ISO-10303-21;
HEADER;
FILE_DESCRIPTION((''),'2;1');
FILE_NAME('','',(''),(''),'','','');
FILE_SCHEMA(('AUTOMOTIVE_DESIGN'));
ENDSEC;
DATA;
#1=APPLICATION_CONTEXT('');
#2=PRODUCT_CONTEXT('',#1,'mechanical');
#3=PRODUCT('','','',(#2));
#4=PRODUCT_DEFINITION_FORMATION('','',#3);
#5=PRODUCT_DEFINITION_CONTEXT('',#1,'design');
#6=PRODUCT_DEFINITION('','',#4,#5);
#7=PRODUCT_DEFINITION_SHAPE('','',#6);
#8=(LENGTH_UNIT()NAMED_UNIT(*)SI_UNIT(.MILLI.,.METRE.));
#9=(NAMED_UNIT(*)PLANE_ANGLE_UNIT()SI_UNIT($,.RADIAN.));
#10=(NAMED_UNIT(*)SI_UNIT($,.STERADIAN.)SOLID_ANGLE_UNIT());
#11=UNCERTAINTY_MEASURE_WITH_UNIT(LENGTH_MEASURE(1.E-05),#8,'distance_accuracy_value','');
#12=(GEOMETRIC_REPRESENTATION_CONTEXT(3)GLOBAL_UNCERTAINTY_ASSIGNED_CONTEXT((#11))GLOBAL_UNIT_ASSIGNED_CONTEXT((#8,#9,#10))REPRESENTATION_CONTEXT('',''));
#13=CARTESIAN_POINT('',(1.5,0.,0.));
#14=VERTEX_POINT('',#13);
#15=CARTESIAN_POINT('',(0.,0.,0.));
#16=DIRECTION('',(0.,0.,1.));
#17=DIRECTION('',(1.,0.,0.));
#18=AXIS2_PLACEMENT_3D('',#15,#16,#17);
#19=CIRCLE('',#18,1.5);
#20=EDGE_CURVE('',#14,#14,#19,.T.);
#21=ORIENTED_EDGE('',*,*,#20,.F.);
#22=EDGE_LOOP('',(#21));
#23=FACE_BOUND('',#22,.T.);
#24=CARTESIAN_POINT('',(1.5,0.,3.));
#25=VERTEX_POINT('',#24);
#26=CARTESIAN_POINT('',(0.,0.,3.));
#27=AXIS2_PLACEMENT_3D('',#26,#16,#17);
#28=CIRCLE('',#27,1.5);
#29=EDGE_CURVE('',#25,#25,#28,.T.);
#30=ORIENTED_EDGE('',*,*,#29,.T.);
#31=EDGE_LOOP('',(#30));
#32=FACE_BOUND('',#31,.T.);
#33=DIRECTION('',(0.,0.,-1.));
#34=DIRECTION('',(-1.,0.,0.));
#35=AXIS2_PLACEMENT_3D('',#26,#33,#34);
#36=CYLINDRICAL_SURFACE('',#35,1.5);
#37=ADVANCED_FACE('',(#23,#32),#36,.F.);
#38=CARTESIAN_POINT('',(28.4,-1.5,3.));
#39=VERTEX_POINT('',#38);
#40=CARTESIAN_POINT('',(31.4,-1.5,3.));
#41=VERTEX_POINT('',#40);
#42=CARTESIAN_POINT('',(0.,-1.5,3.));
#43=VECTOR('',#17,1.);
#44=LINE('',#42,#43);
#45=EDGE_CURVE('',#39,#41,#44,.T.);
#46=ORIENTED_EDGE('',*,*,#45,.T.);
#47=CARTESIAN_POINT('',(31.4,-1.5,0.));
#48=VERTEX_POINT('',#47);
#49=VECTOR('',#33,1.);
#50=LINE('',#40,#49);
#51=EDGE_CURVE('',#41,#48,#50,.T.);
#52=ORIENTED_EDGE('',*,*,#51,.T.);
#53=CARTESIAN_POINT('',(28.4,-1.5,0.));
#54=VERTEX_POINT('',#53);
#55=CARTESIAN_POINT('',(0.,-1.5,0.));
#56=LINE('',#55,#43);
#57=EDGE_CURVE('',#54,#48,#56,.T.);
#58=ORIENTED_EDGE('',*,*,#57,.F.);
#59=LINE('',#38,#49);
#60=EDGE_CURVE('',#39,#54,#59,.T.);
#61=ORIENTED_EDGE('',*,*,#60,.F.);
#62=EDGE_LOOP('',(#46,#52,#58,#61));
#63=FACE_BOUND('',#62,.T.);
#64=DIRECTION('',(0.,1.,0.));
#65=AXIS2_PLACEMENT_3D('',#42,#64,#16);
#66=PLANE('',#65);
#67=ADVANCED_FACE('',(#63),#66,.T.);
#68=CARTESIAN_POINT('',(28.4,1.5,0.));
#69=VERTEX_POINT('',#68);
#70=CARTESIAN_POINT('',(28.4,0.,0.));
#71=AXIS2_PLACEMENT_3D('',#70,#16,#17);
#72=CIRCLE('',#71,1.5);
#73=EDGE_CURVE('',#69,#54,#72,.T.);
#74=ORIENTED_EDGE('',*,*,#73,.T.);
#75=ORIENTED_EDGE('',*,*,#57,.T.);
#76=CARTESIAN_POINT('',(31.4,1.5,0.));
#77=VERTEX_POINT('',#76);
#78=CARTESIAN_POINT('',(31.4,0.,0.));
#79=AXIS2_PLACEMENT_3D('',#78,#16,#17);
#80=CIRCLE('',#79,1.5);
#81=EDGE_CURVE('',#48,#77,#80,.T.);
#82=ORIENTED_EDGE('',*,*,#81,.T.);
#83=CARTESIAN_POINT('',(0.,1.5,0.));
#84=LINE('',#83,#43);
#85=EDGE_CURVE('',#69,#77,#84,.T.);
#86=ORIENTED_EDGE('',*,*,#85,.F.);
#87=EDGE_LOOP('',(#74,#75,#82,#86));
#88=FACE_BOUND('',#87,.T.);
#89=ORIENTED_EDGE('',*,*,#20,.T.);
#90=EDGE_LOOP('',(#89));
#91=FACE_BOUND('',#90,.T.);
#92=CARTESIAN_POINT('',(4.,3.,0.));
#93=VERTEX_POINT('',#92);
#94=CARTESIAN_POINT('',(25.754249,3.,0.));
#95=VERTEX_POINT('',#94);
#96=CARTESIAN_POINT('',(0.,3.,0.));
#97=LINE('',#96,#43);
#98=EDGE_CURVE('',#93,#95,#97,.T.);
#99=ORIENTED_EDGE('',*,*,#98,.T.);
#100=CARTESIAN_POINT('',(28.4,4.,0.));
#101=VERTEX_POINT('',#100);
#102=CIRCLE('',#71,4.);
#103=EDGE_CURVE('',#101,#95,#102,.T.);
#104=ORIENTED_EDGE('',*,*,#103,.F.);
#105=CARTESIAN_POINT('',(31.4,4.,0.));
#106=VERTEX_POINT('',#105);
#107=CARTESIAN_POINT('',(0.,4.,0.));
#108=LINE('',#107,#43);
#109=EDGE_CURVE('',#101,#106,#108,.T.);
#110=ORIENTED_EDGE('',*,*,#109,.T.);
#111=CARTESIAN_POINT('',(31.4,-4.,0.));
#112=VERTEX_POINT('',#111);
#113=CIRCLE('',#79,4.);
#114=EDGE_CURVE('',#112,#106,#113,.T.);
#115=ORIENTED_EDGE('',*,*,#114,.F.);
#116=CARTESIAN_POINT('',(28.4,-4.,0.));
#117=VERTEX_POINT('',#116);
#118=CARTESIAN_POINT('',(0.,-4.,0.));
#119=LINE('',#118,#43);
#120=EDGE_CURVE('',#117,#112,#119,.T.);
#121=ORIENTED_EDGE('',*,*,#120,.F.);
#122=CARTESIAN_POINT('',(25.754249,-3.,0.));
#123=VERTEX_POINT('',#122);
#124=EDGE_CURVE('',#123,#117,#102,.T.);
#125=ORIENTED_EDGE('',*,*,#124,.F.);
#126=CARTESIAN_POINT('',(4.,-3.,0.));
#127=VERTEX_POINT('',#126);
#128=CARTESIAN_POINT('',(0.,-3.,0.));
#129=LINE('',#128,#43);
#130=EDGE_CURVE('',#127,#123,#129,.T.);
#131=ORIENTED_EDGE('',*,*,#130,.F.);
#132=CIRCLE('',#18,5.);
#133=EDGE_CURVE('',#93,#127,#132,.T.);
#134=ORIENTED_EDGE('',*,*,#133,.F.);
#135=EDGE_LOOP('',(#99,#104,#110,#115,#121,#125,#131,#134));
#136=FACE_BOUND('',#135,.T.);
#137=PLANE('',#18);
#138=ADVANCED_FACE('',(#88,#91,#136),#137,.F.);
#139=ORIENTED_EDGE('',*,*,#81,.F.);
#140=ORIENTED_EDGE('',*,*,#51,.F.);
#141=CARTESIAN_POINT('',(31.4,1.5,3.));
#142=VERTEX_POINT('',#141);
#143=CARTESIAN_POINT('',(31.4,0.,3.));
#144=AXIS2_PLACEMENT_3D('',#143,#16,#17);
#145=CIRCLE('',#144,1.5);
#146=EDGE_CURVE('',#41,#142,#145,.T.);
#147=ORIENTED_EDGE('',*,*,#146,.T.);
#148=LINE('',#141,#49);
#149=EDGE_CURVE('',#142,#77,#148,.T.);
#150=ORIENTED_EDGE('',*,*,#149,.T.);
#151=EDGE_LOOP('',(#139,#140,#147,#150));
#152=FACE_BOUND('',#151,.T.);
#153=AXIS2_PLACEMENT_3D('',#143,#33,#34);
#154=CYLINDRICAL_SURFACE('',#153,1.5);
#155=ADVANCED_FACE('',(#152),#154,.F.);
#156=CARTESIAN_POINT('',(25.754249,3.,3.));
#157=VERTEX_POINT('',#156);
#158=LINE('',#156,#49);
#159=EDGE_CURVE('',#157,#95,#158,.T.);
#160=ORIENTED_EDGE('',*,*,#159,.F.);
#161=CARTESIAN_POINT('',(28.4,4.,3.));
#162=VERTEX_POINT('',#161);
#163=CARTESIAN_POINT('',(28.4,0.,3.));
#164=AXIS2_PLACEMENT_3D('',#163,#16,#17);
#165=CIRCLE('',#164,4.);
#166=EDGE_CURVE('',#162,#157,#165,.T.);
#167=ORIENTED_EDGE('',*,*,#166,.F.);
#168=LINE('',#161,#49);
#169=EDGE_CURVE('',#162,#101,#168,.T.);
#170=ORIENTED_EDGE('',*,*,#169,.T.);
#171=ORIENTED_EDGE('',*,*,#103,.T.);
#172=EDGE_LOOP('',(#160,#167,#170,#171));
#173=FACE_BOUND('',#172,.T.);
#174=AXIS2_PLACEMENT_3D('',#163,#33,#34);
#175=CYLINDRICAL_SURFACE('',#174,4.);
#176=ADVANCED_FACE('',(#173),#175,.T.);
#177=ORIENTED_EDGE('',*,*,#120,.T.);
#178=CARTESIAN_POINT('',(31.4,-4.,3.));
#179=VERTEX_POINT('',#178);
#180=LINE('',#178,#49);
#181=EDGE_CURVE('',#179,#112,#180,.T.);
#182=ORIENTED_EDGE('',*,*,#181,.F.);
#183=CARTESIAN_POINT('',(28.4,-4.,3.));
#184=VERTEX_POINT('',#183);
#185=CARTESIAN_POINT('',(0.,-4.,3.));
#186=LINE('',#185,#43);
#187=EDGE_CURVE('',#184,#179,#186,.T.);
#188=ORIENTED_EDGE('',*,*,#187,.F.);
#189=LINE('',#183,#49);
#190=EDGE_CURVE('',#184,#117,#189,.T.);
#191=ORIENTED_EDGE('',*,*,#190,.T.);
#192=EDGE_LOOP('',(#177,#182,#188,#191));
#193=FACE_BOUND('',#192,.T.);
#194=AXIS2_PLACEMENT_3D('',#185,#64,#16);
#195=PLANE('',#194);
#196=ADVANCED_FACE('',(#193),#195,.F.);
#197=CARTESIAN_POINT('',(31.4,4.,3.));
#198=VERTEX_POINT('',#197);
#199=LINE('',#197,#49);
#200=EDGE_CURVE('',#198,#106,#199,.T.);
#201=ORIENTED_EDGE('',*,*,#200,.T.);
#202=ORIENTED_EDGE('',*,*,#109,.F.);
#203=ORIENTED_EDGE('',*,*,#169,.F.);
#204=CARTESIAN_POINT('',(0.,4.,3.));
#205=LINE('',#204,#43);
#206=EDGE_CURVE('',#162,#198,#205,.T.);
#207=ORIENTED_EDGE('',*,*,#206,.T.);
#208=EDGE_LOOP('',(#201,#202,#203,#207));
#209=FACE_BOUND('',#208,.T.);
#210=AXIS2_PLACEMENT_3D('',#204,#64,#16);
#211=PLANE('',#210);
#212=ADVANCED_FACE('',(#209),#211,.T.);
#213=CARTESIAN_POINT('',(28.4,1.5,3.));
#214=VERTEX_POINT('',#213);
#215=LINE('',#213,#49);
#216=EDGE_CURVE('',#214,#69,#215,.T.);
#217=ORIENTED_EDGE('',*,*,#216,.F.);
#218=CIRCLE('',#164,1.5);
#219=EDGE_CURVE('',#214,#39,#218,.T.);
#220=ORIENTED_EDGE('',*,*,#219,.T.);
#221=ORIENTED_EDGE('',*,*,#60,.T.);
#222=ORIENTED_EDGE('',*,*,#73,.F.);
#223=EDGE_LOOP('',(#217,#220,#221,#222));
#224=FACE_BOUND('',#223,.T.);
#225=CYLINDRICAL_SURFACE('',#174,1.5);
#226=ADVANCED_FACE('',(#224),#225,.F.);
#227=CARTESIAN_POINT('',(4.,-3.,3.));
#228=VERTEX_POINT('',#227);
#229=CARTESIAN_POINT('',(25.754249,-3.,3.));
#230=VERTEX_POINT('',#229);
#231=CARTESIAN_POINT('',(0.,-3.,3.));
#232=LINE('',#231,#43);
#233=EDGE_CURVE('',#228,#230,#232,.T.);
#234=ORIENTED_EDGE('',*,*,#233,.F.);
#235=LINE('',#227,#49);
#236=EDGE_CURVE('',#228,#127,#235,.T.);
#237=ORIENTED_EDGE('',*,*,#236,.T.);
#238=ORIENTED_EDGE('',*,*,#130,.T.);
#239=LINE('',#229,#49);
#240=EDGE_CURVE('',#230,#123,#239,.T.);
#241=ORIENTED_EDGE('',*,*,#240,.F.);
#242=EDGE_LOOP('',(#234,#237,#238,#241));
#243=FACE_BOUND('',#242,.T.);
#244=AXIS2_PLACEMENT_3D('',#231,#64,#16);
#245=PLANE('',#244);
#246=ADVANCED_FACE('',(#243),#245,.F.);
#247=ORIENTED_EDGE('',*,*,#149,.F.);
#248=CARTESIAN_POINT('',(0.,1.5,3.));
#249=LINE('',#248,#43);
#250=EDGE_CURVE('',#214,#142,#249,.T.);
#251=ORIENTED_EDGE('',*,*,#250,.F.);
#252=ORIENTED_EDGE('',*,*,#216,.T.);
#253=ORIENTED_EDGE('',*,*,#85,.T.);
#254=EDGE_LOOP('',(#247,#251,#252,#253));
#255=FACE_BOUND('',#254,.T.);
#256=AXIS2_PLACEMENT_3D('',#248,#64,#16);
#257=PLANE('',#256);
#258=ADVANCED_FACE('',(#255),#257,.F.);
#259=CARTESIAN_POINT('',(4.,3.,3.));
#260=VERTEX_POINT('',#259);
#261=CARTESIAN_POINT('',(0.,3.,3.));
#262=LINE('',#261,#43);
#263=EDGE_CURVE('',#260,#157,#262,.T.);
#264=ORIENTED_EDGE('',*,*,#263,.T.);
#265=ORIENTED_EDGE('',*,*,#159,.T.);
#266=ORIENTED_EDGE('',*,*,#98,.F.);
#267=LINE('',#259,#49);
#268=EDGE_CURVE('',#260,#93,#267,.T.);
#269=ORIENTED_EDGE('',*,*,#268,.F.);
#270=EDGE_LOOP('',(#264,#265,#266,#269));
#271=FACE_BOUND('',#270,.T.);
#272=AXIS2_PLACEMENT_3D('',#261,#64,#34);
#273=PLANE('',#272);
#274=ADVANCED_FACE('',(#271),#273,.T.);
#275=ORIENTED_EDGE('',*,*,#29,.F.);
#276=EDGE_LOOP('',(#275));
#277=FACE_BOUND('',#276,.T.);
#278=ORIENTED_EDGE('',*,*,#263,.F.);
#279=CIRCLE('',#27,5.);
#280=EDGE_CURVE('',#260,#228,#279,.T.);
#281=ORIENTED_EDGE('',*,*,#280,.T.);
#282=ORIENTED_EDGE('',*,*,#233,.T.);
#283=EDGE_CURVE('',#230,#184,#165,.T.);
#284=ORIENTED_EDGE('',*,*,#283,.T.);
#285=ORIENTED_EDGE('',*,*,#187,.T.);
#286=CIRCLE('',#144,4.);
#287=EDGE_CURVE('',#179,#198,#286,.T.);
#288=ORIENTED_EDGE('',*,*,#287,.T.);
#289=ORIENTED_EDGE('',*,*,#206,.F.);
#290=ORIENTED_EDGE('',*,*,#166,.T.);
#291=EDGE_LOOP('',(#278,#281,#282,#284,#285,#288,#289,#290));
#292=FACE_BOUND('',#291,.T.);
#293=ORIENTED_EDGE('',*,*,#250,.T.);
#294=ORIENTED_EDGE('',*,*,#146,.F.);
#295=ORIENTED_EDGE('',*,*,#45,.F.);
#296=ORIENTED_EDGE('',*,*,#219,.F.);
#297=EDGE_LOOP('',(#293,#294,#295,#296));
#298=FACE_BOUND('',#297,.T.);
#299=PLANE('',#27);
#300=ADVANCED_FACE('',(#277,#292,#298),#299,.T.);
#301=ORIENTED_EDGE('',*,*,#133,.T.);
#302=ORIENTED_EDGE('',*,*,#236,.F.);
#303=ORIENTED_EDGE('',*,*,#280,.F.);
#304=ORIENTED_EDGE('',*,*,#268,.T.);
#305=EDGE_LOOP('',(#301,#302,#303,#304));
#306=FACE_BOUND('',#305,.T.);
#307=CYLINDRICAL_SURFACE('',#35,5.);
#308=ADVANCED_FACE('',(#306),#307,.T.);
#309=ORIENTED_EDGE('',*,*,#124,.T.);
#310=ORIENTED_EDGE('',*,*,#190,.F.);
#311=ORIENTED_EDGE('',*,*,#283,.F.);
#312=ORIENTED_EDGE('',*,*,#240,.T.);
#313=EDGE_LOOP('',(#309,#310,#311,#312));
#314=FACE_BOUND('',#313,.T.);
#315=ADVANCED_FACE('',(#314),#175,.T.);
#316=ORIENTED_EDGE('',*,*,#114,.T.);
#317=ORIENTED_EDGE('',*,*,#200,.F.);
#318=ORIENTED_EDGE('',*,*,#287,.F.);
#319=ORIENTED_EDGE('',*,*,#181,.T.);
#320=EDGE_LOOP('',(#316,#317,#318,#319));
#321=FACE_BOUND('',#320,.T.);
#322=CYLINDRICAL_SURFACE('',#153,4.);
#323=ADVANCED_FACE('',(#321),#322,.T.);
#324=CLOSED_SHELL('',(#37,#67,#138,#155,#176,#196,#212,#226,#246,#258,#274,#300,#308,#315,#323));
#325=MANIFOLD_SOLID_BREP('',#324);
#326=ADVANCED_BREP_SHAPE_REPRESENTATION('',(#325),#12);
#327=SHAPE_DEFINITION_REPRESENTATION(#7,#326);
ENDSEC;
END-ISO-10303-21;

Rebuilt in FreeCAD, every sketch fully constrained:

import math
import FreeCAD as App
import Part
import Sketcher
Q = App.Units.Quantity

doc = App.newDocument("Part")
body = doc.addObject("PartDesign::Body", "Body")

# Sketch on XY plane
sketch1 = body.newObject("Sketcher::SketchObject", "Sketch")
sketch1.AttachmentSupport = (doc.getObject("XY_Plane"), [""])
sketch1.MapMode = "FlatFace"
sketch1.addGeometry([
    Part.ArcOfCircle(Part.Circle(App.Vector(0, 0, 0), App.Vector(0, 0, 1), 5), math.radians(37), math.radians(323)),  # 0
    Part.LineSegment(App.Vector(4, -3, 0), App.Vector(25.8, -3, 0)),  # 1
    Part.ArcOfCircle(Part.Circle(App.Vector(28.4, 0, 0), App.Vector(0, 0, 1), 4), math.radians(-131), math.radians(-90)),  # 2
    Part.LineSegment(App.Vector(28.4, -4, 0), App.Vector(31.4, -4, 0)),  # 3
    Part.ArcOfCircle(Part.Circle(App.Vector(31.4, 0, 0), App.Vector(0, 0, 1), 4), math.radians(-90), math.radians(90)),  # 4
    Part.LineSegment(App.Vector(31.4, 4, 0), App.Vector(28.4, 4, 0)),  # 5
    Part.ArcOfCircle(Part.Circle(App.Vector(28.4, 0, 0), App.Vector(0, 0, 1), 4), math.radians(90), math.radians(131)),  # 6
    Part.LineSegment(App.Vector(25.8, 3, 0), App.Vector(4, 3, 0)),  # 7
    Part.ArcOfCircle(Part.Circle(App.Vector(0, 0, 0), App.Vector(0, 0, 1), 1.5), math.radians(0), math.radians(90)),  # 8
    Part.ArcOfCircle(Part.Circle(App.Vector(0, 0, 0), App.Vector(0, 0, 1), 1.5), math.radians(-90), math.radians(0)),  # 9
    Part.ArcOfCircle(Part.Circle(App.Vector(0, 0, 0), App.Vector(0, 0, 1), 1.5), math.radians(90), math.radians(270)),  # 10
    Part.LineSegment(App.Vector(31.4, -1.5, 0), App.Vector(28.4, -1.5, 0)),  # 11
    Part.ArcOfCircle(Part.Circle(App.Vector(28.4, 0, 0), App.Vector(0, 0, 1), 1.5), math.radians(90), math.radians(270)),  # 12
    Part.LineSegment(App.Vector(28.4, 1.5, 0), App.Vector(31.4, 1.5, 0)),  # 13
    Part.ArcOfCircle(Part.Circle(App.Vector(31.4, 0, 0), App.Vector(0, 0, 1), 1.5), math.radians(0), math.radians(90)),  # 14
    Part.ArcOfCircle(Part.Circle(App.Vector(31.4, 0, 0), App.Vector(0, 0, 1), 1.5), math.radians(-90), math.radians(0)),  # 15
], False)
sketch1.addConstraint([
    Sketcher.Constraint("Coincident", 0, 2, 1, 1),
    Sketcher.Constraint("Coincident", 1, 2, 2, 1),
    Sketcher.Constraint("Tangent", 2, 2, 3, 1),
    Sketcher.Constraint("Tangent", 3, 2, 4, 1),
    Sketcher.Constraint("Tangent", 4, 2, 5, 1),
    Sketcher.Constraint("Tangent", 5, 2, 6, 1),
    Sketcher.Constraint("Coincident", 6, 2, 7, 1),
    Sketcher.Constraint("Coincident", 7, 2, 0, 1),
    Sketcher.Constraint("Tangent", 8, 1, 9, 2),
    Sketcher.Constraint("Tangent", 9, 1, 10, 2),
    Sketcher.Constraint("Tangent", 10, 1, 8, 2),
    Sketcher.Constraint("Tangent", 11, 2, 12, 2),
    Sketcher.Constraint("Tangent", 12, 1, 13, 1),
    Sketcher.Constraint("Tangent", 13, 2, 14, 2),
    Sketcher.Constraint("Tangent", 14, 1, 15, 2),
    Sketcher.Constraint("Tangent", 15, 1, 11, 1),
    Sketcher.Constraint("Horizontal", 1),
    Sketcher.Constraint("Horizontal", 3),
    Sketcher.Constraint("Horizontal", 5),
    Sketcher.Constraint("Horizontal", 7),
    Sketcher.Constraint("Horizontal", 11),
    Sketcher.Constraint("Horizontal", 13),
    Sketcher.Constraint("Coincident", 0, 3, -1, 1),
    Sketcher.Constraint("Coincident", 8, 3, -1, 1),
    Sketcher.Constraint("Coincident", 6, 3, 2, 3),
    Sketcher.Constraint("Coincident", 12, 3, 2, 3),
    Sketcher.Constraint("Coincident", 14, 3, 4, 3),
    Sketcher.Constraint("Equal", 2, 4),
    Sketcher.Constraint("Equal", 10, 12),
    Sketcher.Constraint("Symmetric", 1, 2, 6, 2, -1),
    Sketcher.Constraint("PointOnObject", 8, 1, -1),
    Sketcher.Constraint("PointOnObject", 9, 1, -2),
    Sketcher.Constraint("PointOnObject", 10, 1, -2),
    Sketcher.Constraint("PointOnObject", 14, 1, -1),
    Sketcher.Constraint("Radius", 0, Q("5 mm")),
    Sketcher.Constraint("Radius", 2, Q("4 mm")),
    Sketcher.Constraint("Radius", 8, Q("1.5 mm")),
    Sketcher.Constraint("DistanceX", 3, 1, 3, 2, Q("3 mm")),
    Sketcher.Constraint("DistanceX", -1, 1, 0, 2, Q("4 mm")),
    Sketcher.Constraint("DistanceX", -1, 1, 2, 3, Q("28.4 mm")),
])
pad1 = body.newObject("PartDesign::Pad", "Pad")
pad1.Profile = sketch1
pad1.Length = 3

doc.recompute()
